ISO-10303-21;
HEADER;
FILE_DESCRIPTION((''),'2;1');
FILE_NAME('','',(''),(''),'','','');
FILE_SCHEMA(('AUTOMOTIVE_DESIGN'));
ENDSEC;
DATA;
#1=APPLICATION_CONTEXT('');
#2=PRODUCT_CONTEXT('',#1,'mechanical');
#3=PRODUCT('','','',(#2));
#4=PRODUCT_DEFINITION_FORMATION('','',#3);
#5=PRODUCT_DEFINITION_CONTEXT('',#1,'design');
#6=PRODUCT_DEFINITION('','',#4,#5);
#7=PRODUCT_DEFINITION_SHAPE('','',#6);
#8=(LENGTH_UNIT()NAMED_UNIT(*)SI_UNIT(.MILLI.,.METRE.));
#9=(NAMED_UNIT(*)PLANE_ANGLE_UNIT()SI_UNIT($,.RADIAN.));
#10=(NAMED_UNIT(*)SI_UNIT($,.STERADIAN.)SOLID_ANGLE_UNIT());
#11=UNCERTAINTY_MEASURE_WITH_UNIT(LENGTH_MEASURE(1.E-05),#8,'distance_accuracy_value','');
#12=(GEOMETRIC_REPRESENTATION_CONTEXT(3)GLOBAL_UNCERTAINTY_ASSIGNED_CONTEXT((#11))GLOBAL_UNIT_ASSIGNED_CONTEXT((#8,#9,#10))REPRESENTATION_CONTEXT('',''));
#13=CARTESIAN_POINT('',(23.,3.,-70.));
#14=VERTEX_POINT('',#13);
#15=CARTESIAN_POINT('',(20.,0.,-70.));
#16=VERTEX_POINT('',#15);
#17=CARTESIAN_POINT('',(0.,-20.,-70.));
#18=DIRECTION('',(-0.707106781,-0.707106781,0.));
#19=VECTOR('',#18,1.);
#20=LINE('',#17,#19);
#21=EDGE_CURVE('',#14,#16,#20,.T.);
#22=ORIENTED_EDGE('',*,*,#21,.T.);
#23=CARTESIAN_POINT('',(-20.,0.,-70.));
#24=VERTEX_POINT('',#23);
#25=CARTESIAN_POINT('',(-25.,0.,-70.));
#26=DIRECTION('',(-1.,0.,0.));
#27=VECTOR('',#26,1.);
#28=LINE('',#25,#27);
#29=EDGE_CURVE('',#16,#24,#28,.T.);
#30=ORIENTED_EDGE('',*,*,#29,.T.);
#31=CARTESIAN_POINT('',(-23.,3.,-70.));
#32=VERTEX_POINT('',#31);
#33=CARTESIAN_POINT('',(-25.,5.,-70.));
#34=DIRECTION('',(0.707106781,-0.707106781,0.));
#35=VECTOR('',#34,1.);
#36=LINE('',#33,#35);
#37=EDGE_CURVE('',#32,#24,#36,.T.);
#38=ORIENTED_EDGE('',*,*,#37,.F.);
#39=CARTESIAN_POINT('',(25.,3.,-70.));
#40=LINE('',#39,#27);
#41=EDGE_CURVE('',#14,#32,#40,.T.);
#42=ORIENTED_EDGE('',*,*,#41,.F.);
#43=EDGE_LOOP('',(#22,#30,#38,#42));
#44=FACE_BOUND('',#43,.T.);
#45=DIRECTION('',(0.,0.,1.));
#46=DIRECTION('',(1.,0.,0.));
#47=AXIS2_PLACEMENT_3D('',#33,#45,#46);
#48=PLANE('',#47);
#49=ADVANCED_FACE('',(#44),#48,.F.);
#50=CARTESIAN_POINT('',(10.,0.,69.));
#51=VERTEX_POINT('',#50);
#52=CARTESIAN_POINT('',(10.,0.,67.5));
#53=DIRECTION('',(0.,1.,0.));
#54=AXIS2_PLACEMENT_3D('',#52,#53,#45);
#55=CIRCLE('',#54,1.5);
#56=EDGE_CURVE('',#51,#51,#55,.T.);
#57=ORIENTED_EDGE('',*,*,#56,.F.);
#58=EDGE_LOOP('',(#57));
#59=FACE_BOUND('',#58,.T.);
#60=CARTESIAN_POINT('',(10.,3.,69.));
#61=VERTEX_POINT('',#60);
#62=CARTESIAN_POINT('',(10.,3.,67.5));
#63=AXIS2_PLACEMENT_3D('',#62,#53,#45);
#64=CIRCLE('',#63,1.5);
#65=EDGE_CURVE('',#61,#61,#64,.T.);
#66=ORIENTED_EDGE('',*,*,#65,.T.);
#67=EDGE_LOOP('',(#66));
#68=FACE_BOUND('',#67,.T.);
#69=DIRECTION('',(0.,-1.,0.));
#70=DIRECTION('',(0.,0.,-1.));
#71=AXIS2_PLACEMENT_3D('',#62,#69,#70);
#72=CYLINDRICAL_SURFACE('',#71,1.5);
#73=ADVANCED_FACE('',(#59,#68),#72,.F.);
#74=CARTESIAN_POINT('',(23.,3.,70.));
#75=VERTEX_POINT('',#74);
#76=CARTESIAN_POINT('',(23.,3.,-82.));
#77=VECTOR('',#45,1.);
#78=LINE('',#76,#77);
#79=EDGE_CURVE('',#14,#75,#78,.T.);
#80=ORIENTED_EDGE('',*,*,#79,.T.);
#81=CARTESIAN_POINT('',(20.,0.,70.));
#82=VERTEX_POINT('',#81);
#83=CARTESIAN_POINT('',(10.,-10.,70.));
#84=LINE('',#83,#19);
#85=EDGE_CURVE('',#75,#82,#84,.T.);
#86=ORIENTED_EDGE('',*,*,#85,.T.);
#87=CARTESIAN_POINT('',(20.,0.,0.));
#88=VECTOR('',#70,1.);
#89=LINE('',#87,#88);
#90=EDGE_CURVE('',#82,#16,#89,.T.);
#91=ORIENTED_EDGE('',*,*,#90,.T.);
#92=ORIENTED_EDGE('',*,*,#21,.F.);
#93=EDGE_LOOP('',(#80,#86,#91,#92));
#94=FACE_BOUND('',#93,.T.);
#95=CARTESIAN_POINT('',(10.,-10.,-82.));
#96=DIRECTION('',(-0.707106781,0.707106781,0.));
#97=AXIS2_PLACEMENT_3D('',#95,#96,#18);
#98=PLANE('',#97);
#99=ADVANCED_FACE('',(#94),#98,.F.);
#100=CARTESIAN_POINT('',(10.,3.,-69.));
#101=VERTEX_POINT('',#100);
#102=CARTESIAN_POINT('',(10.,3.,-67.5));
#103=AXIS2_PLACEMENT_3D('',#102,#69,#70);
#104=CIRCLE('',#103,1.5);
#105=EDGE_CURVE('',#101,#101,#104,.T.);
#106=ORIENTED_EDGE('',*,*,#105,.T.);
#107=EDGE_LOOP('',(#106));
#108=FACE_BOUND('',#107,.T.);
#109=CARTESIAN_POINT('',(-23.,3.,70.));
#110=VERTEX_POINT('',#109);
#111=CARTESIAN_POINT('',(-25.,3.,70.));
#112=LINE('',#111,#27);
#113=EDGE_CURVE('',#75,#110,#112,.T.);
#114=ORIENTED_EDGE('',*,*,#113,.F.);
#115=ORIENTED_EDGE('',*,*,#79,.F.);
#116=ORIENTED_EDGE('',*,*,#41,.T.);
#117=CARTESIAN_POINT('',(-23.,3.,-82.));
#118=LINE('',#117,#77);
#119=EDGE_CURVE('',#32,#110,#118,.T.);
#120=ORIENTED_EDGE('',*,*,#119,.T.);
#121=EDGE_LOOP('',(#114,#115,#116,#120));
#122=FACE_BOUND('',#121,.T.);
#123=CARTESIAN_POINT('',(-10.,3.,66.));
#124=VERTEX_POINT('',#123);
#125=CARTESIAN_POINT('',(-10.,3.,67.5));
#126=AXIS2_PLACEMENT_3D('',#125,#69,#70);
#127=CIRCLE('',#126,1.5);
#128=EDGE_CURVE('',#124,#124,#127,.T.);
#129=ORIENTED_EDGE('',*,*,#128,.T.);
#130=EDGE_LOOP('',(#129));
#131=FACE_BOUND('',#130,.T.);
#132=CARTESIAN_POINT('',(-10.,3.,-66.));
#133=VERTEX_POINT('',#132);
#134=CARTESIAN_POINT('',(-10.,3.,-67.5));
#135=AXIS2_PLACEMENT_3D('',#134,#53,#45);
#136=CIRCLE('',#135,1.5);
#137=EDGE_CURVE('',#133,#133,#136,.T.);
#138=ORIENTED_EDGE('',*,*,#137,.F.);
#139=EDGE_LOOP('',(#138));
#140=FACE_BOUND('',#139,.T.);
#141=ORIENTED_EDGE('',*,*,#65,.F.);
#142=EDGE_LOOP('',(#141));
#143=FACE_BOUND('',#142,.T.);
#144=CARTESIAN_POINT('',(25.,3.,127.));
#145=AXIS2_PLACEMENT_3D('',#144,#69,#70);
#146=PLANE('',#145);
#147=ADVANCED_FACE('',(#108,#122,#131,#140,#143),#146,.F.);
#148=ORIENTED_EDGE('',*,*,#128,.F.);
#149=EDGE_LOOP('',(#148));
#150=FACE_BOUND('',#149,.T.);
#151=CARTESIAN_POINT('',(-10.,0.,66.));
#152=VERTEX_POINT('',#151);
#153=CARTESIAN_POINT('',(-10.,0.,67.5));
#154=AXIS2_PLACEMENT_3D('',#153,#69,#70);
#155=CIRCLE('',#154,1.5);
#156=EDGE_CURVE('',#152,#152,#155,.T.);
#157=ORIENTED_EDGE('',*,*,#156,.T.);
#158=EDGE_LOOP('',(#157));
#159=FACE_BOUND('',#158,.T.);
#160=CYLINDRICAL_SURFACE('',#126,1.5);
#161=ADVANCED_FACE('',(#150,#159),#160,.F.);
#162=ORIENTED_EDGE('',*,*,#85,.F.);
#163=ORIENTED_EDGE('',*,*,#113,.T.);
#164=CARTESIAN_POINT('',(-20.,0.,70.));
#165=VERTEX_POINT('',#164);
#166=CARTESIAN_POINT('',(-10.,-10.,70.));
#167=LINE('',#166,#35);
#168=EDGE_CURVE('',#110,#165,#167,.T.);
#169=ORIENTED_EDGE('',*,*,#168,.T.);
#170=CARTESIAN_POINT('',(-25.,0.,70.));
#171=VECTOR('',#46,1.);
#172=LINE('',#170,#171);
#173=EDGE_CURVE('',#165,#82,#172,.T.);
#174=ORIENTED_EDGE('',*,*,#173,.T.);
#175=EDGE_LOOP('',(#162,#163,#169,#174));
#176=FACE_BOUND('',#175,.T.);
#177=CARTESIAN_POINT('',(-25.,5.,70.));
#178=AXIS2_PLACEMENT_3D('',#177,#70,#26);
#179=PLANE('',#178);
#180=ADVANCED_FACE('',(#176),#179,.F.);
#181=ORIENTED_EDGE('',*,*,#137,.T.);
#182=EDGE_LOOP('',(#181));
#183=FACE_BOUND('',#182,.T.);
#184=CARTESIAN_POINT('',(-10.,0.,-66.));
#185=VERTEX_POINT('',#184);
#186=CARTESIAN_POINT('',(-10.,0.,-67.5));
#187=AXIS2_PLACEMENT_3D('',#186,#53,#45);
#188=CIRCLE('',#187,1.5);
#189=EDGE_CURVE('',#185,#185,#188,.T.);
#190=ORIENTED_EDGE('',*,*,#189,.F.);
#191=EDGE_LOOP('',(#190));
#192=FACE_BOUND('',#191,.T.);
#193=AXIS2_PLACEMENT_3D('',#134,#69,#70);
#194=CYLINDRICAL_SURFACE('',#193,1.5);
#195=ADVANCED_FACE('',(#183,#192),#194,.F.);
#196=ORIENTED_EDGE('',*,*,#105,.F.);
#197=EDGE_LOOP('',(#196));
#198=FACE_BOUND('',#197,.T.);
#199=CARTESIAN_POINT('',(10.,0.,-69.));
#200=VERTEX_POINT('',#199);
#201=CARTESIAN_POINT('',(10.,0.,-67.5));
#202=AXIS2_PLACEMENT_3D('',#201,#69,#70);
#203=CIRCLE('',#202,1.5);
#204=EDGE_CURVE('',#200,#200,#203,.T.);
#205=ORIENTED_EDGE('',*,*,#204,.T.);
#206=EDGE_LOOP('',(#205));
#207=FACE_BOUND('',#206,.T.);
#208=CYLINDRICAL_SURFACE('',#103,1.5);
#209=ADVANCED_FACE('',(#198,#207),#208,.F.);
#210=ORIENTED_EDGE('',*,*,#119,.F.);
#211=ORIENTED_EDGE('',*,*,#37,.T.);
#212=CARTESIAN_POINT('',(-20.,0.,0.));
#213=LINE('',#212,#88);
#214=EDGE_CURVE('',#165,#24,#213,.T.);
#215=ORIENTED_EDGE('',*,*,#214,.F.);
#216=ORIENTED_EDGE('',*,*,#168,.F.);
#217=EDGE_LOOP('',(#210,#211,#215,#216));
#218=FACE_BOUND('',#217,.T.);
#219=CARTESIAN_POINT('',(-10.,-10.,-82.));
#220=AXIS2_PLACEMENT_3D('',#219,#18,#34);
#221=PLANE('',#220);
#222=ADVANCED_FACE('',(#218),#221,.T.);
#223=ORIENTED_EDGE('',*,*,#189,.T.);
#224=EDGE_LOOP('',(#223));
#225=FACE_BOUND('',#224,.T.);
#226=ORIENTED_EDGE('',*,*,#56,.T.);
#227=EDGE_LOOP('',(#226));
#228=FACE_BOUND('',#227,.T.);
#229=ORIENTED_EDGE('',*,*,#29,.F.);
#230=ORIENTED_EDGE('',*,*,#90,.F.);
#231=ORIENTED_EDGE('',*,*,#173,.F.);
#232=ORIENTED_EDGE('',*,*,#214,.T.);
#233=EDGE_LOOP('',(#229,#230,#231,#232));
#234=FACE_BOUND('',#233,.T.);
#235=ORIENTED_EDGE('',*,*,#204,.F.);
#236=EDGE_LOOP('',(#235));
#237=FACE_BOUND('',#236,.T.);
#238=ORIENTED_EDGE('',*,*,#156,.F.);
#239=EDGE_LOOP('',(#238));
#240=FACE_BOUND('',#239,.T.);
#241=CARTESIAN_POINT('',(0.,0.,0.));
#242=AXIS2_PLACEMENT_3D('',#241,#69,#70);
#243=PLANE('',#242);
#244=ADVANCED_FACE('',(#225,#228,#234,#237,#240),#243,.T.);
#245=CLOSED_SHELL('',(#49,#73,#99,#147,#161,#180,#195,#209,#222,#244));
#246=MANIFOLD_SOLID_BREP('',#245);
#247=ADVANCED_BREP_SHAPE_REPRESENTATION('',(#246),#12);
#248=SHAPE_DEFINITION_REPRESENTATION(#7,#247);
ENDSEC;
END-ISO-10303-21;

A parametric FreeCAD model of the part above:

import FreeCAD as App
import Part
import Sketcher
from FreeCAD import Vector


def add_polygon(sketch, points):
    """Adds a closed chain of lines whose ends are joined by coincident constraints."""
    first, n = sketch.GeometryCount, len(points)
    for a, b in zip(points, points[1:] + points[:1]):
        sketch.addGeometry(Part.LineSegment(App.Vector(*a, 0), App.Vector(*b, 0)), False)
    for i in range(n):
        sketch.addConstraint(Sketcher.Constraint("Coincident", first + i, 2, first + (i + 1) % n, 1))

doc = App.newDocument("Part")
body = doc.addObject("PartDesign::Body", "Body")

# Sketch on XZ plane
sketch1 = body.newObject("Sketcher::SketchObject", "Sketch")
sketch1.AttachmentSupport = (doc.getObject("XZ_Plane"), [""])
sketch1.MapMode = "FlatFace"
add_polygon(sketch1, [(-25, -70), (-25, 70), (25, 70), (25, -70)])  # lines 0-3
sketch1.addConstraint(Sketcher.Constraint("Vertical", 0))
sketch1.addConstraint(Sketcher.Constraint("Horizontal", 1))
sketch1.addConstraint(Sketcher.Constraint("Vertical", 2))
sketch1.addConstraint(Sketcher.Constraint("Horizontal", 3))
sketch1.addConstraint(Sketcher.Constraint("Symmetric", 0, 2, 2, 2, -1, 1))
sketch1.addConstraint(Sketcher.Constraint("DistanceX", 1, 1, 1, 2, 50.0))
sketch1.addConstraint(Sketcher.Constraint("DistanceY", 0, 1, 0, 2, 140.0))
pad1 = body.newObject("PartDesign::Pad", "Pad")
pad1.Profile = sketch1
pad1.Length = 5
pad1.Reversed = True

# Sketch on XY plane
sketch2 = body.newObject("Sketcher::SketchObject", "Sketch001")
sketch2.AttachmentSupport = (doc.getObject("XY_Plane"), [""])
sketch2.MapMode = "FlatFace"
sketch2.AttachmentOffset = App.Placement(Vector(0, 0, 70), App.Rotation())
add_polygon(sketch2, [(-20, 0), (-25, 5), (-25, 0)])  # lines 0-2
add_polygon(sketch2, [(25, 5), (20, 0), (25, 0)])  # lines 3-5
sketch2.addConstraint(Sketcher.Constraint("Vertical", 1))
sketch2.addConstraint(Sketcher.Constraint("Horizontal", 2))
sketch2.addConstraint(Sketcher.Constraint("Horizontal", 4))
sketch2.addConstraint(Sketcher.Constraint("Vertical", 5))
sketch2.addConstraint(Sketcher.Constraint("Symmetric", 2, 2, 3, 2, -1, 1))
sketch2.addConstraint(Sketcher.Constraint("Symmetric", 1, 2, 4, 2, -2))
sketch2.addConstraint(Sketcher.Constraint("Perpendicular", 0, 3))
sketch2.addConstraint(Sketcher.Constraint("Horizontal", 0, 2, 5, 2))
sketch2.addConstraint(Sketcher.Constraint("DistanceX", 2, 1, 2, 2, 5.0))
sketch2.addConstraint(Sketcher.Constraint("DistanceX", 0, 2, -1, 1, 25.0))
pocket1 = body.newObject("PartDesign::Pocket", "Pocket")
pocket1.Profile = sketch2
pocket1.Length = 152

# Sketch on XY plane
sketch3 = body.newObject("Sketcher::SketchObject", "Sketch002")
sketch3.AttachmentSupport = (doc.getObject("XY_Plane"), [""])
sketch3.MapMode = "FlatFace"
sketch3.AttachmentOffset = App.Placement(Vector(0, 0, -70), App.Rotation())
add_polygon(sketch3, [(25, 5), (25, 3), (-25, 3), (-25, 5)])  # lines 0-3
sketch3.addConstraint(Sketcher.Constraint("Vertical", 0))
sketch3.addConstraint(Sketcher.Constraint("Horizontal", 1))
sketch3.addConstraint(Sketcher.Constraint("Vertical", 2))
sketch3.addConstraint(Sketcher.Constraint("Horizontal", 3))
sketch3.addConstraint(Sketcher.Constraint("DistanceX", 1, 2, 1, 1, 50.0))
sketch3.addConstraint(Sketcher.Constraint("DistanceY", 0, 2, 0, 1, 2.0))
sketch3.addConstraint(Sketcher.Constraint("DistanceX", -1, 1, 0, 2, 25.0))
sketch3.addConstraint(Sketcher.Constraint("DistanceY", -1, 1, 0, 2, 3.0))
pocket2 = body.newObject("PartDesign::Pocket", "Pocket001")
pocket2.Profile = sketch3
pocket2.Length = 197
pocket2.Reversed = True

# Sketch on XZ plane
sketch4 = body.newObject("Sketcher::SketchObject", "Sketch003")
sketch4.AttachmentSupport = (doc.getObject("XZ_Plane"), [""])
sketch4.MapMode = "FlatFace"
add_polygon(sketch4, [(-15, 65), (-15, -65), (15, -65), (15, 65)])  # lines 0-3
sketch4.addConstraint(Sketcher.Constraint("Vertical", 0))
sketch4.addConstraint(Sketcher.Constraint("Horizontal", 1))
sketch4.addConstraint(Sketcher.Constraint("Vertical", 2))
sketch4.addConstraint(Sketcher.Constraint("Horizontal", 3))
sketch4.addConstraint(Sketcher.Constraint("Symmetric", 0, 2, 2, 2, -1, 1))
sketch4.addConstraint(Sketcher.Constraint("DistanceX", 1, 1, 1, 2, 30.0))
sketch4.addConstraint(Sketcher.Constraint("DistanceY", 0, 2, 0, 1, 130.0))
pocket3 = body.newObject("PartDesign::Pocket", "Pocket002")
pocket3.Profile = sketch4
pocket3.Length = 197

# Sketch on XZ plane
sketch5 = body.newObject("Sketcher::SketchObject", "Sketch004")
sketch5.AttachmentSupport = (doc.getObject("XZ_Plane"), [""])
sketch5.MapMode = "FlatFace"
add_polygon(sketch5, [(-20, -50), (-20, -70), (20, -70), (20, -50)])  # lines 0-3
sketch5.addGeometry(Part.Circle(Vector(-13.5, -56.5, 0), Vector(0, 0, 1), 1.5), False)  # 4
sketch5.addGeometry(Part.Circle(Vector(13.5, -56.5, 0), Vector(0, 0, 1), 1.5), False)  # 5
sketch5.addConstraint(Sketcher.Constraint("Vertical", 0))
sketch5.addConstraint(Sketcher.Constraint("Horizontal", 1))
sketch5.addConstraint(Sketcher.Constraint("Vertical", 2))
sketch5.addConstraint(Sketcher.Constraint("Horizontal", 3))
sketch5.addConstraint(Sketcher.Constraint("Equal", 4, 5))
sketch5.addConstraint(Sketcher.Constraint("Symmetric", 4, 3, 5, 3, -2))
sketch5.addConstraint(Sketcher.Constraint("Diameter", 4, 3.0))
sketch5.addConstraint(Sketcher.Constraint("DistanceX", 1, 1, 1, 2, 40.0))
sketch5.addConstraint(Sketcher.Constraint("DistanceY", 0, 2, 0, 1, 20.0))
sketch5.addConstraint(Sketcher.Constraint("DistanceX", 0, 2, -1, 1, 20.0))
sketch5.addConstraint(Sketcher.Constraint("DistanceY", 0, 2, -1, 1, 70.0))
sketch5.addConstraint(Sketcher.Constraint("DistanceX", 4, 3, 5, 3, 27.0))
sketch5.addConstraint(Sketcher.Constraint("DistanceY", 4, 3, -1, 1, 56.5))
pad2 = body.newObject("PartDesign::Pad", "Pad001")
pad2.Profile = sketch5
pad2.Length = 3
pad2.Reversed = True

# Sketch on XZ plane
sketch6 = body.newObject("Sketcher::SketchObject", "Sketch005")
sketch6.AttachmentSupport = (doc.getObject("XZ_Plane"), [""])
sketch6.MapMode = "FlatFace"
add_polygon(sketch6, [(-15, 55), (-15, 45), (15, 45), (15, 55)])  # lines 0-3
sketch6.addGeometry(Part.Circle(Vector(-10, 50, 0), Vector(0, 0, 1), 1.5), False)  # 4
sketch6.addGeometry(Part.Circle(Vector(10, 50, 0), Vector(0, 0, 1), 1.5), False)  # 5
sketch6.addConstraint(Sketcher.Constraint("Vertical", 0))
sketch6.addConstraint(Sketcher.Constraint("Horizontal", 1))
sketch6.addConstraint(Sketcher.Constraint("Vertical", 2))
sketch6.addConstraint(Sketcher.Constraint("Horizontal", 3))
sketch6.addConstraint(Sketcher.Constraint("Equal", 4, 5))
sketch6.addConstraint(Sketcher.Constraint("Symmetric", 4, 3, 5, 3, -2))
sketch6.addConstraint(Sketcher.Constraint("Diameter", 4, 3.0))
sketch6.addConstraint(Sketcher.Constraint("DistanceX", 1, 1, 1, 2, 30.0))
sketch6.addConstraint(Sketcher.Constraint("DistanceY", 0, 2, 0, 1, 10.0))
sketch6.addConstraint(Sketcher.Constraint("DistanceX", 4, 3, -1, 1, 10.0))
sketch6.addConstraint(Sketcher.Constraint("DistanceY", -1, 1, 4, 3, 50.0))
sketch6.addConstraint(Sketcher.Constraint("DistanceX", 0, 2, -1, 1, 15.0))
sketch6.addConstraint(Sketcher.Constraint("DistanceY", -1, 1, 0, 2, 45.0))
pad3 = body.newObject("PartDesign::Pad", "Pad002")
pad3.Profile = sketch6
pad3.Length = 3
pad3.Reversed = True

# Sketch on XZ plane
sketch7 = body.newObject("Sketcher::SketchObject", "Sketch006")
sketch7.AttachmentSupport = (doc.getObject("XZ_Plane"), [""])
sketch7.MapMode = "FlatFace"
sketch7.addGeometry(Part.Circle(Vector(-10, 67.5, 0), Vector(0, 0, 1), 1.5), False)
sketch7.addGeometry(Part.Circle(Vector(10, 67.5, 0), Vector(0, 0, 1), 1.5), False)
sketch7.addGeometry(Part.Circle(Vector(10, -67.5, 0), Vector(0, 0, 1), 1.5), False)
sketch7.addGeometry(Part.Circle(Vector(-10, -67.5, 0), Vector(0, 0, 1), 1.5), False)
sketch7.addConstraint(Sketcher.Constraint("Equal", 0, 1))
sketch7.addConstraint(Sketcher.Constraint("Equal", 1, 2))
sketch7.addConstraint(Sketcher.Constraint("Equal", 2, 3))
sketch7.addConstraint(Sketcher.Constraint("Symmetric", 0, 3, 2, 3, -1, 1))
sketch7.addConstraint(Sketcher.Constraint("Symmetric", 1, 3, 3, 3, -1, 1))
sketch7.addConstraint(Sketcher.Constraint("Symmetric", 0, 3, 1, 3, -2))
sketch7.addConstraint(Sketcher.Constraint("Diameter", 0, 3.0))
sketch7.addConstraint(Sketcher.Constraint("DistanceX", 0, 3, -1, 1, 10.0))
sketch7.addConstraint(Sketcher.Constraint("DistanceY", 2, 3, 1, 3, 135.0))
pocket4 = body.newObject("PartDesign::Pocket", "Pocket003")
pocket4.Profile = sketch7
pocket4.Length = 3

# Sketch on XZ plane
sketch8 = body.newObject("Sketcher::SketchObject", "Sketch007")
sketch8.AttachmentSupport = (doc.getObject("XZ_Plane"), [""])
sketch8.MapMode = "FlatFace"
sketch8.AttachmentOffset = App.Placement(Vector(0, 0, -3), App.Rotation())
add_polygon(sketch8, [(-15, -62), (-15, 65), (15, 65), (15, -62)])  # lines 0-3
sketch8.addConstraint(Sketcher.Constraint("Vertical", 0))
sketch8.addConstraint(Sketcher.Constraint("Horizontal", 1))
sketch8.addConstraint(Sketcher.Constraint("Vertical", 2))
sketch8.addConstraint(Sketcher.Constraint("Horizontal", 3))
sketch8.addConstraint(Sketcher.Constraint("DistanceY", -1, 1, 0, 2, 65.0))
sketch8.addConstraint(Sketcher.Constraint("DistanceX", -1, 1, 1, 2, 15.0))
sketch8.addConstraint(Sketcher.Constraint("DistanceX", 1, 1, 1, 2, 30.040139))
sketch8.addConstraint(Sketcher.Constraint("DistanceY", 0, 1, 0, 2, 126.520438))
pad4 = body.newObject("PartDesign::Pad", "Pad003")
pad4.Profile = sketch8
pad4.Length = 3

doc.recompute()
